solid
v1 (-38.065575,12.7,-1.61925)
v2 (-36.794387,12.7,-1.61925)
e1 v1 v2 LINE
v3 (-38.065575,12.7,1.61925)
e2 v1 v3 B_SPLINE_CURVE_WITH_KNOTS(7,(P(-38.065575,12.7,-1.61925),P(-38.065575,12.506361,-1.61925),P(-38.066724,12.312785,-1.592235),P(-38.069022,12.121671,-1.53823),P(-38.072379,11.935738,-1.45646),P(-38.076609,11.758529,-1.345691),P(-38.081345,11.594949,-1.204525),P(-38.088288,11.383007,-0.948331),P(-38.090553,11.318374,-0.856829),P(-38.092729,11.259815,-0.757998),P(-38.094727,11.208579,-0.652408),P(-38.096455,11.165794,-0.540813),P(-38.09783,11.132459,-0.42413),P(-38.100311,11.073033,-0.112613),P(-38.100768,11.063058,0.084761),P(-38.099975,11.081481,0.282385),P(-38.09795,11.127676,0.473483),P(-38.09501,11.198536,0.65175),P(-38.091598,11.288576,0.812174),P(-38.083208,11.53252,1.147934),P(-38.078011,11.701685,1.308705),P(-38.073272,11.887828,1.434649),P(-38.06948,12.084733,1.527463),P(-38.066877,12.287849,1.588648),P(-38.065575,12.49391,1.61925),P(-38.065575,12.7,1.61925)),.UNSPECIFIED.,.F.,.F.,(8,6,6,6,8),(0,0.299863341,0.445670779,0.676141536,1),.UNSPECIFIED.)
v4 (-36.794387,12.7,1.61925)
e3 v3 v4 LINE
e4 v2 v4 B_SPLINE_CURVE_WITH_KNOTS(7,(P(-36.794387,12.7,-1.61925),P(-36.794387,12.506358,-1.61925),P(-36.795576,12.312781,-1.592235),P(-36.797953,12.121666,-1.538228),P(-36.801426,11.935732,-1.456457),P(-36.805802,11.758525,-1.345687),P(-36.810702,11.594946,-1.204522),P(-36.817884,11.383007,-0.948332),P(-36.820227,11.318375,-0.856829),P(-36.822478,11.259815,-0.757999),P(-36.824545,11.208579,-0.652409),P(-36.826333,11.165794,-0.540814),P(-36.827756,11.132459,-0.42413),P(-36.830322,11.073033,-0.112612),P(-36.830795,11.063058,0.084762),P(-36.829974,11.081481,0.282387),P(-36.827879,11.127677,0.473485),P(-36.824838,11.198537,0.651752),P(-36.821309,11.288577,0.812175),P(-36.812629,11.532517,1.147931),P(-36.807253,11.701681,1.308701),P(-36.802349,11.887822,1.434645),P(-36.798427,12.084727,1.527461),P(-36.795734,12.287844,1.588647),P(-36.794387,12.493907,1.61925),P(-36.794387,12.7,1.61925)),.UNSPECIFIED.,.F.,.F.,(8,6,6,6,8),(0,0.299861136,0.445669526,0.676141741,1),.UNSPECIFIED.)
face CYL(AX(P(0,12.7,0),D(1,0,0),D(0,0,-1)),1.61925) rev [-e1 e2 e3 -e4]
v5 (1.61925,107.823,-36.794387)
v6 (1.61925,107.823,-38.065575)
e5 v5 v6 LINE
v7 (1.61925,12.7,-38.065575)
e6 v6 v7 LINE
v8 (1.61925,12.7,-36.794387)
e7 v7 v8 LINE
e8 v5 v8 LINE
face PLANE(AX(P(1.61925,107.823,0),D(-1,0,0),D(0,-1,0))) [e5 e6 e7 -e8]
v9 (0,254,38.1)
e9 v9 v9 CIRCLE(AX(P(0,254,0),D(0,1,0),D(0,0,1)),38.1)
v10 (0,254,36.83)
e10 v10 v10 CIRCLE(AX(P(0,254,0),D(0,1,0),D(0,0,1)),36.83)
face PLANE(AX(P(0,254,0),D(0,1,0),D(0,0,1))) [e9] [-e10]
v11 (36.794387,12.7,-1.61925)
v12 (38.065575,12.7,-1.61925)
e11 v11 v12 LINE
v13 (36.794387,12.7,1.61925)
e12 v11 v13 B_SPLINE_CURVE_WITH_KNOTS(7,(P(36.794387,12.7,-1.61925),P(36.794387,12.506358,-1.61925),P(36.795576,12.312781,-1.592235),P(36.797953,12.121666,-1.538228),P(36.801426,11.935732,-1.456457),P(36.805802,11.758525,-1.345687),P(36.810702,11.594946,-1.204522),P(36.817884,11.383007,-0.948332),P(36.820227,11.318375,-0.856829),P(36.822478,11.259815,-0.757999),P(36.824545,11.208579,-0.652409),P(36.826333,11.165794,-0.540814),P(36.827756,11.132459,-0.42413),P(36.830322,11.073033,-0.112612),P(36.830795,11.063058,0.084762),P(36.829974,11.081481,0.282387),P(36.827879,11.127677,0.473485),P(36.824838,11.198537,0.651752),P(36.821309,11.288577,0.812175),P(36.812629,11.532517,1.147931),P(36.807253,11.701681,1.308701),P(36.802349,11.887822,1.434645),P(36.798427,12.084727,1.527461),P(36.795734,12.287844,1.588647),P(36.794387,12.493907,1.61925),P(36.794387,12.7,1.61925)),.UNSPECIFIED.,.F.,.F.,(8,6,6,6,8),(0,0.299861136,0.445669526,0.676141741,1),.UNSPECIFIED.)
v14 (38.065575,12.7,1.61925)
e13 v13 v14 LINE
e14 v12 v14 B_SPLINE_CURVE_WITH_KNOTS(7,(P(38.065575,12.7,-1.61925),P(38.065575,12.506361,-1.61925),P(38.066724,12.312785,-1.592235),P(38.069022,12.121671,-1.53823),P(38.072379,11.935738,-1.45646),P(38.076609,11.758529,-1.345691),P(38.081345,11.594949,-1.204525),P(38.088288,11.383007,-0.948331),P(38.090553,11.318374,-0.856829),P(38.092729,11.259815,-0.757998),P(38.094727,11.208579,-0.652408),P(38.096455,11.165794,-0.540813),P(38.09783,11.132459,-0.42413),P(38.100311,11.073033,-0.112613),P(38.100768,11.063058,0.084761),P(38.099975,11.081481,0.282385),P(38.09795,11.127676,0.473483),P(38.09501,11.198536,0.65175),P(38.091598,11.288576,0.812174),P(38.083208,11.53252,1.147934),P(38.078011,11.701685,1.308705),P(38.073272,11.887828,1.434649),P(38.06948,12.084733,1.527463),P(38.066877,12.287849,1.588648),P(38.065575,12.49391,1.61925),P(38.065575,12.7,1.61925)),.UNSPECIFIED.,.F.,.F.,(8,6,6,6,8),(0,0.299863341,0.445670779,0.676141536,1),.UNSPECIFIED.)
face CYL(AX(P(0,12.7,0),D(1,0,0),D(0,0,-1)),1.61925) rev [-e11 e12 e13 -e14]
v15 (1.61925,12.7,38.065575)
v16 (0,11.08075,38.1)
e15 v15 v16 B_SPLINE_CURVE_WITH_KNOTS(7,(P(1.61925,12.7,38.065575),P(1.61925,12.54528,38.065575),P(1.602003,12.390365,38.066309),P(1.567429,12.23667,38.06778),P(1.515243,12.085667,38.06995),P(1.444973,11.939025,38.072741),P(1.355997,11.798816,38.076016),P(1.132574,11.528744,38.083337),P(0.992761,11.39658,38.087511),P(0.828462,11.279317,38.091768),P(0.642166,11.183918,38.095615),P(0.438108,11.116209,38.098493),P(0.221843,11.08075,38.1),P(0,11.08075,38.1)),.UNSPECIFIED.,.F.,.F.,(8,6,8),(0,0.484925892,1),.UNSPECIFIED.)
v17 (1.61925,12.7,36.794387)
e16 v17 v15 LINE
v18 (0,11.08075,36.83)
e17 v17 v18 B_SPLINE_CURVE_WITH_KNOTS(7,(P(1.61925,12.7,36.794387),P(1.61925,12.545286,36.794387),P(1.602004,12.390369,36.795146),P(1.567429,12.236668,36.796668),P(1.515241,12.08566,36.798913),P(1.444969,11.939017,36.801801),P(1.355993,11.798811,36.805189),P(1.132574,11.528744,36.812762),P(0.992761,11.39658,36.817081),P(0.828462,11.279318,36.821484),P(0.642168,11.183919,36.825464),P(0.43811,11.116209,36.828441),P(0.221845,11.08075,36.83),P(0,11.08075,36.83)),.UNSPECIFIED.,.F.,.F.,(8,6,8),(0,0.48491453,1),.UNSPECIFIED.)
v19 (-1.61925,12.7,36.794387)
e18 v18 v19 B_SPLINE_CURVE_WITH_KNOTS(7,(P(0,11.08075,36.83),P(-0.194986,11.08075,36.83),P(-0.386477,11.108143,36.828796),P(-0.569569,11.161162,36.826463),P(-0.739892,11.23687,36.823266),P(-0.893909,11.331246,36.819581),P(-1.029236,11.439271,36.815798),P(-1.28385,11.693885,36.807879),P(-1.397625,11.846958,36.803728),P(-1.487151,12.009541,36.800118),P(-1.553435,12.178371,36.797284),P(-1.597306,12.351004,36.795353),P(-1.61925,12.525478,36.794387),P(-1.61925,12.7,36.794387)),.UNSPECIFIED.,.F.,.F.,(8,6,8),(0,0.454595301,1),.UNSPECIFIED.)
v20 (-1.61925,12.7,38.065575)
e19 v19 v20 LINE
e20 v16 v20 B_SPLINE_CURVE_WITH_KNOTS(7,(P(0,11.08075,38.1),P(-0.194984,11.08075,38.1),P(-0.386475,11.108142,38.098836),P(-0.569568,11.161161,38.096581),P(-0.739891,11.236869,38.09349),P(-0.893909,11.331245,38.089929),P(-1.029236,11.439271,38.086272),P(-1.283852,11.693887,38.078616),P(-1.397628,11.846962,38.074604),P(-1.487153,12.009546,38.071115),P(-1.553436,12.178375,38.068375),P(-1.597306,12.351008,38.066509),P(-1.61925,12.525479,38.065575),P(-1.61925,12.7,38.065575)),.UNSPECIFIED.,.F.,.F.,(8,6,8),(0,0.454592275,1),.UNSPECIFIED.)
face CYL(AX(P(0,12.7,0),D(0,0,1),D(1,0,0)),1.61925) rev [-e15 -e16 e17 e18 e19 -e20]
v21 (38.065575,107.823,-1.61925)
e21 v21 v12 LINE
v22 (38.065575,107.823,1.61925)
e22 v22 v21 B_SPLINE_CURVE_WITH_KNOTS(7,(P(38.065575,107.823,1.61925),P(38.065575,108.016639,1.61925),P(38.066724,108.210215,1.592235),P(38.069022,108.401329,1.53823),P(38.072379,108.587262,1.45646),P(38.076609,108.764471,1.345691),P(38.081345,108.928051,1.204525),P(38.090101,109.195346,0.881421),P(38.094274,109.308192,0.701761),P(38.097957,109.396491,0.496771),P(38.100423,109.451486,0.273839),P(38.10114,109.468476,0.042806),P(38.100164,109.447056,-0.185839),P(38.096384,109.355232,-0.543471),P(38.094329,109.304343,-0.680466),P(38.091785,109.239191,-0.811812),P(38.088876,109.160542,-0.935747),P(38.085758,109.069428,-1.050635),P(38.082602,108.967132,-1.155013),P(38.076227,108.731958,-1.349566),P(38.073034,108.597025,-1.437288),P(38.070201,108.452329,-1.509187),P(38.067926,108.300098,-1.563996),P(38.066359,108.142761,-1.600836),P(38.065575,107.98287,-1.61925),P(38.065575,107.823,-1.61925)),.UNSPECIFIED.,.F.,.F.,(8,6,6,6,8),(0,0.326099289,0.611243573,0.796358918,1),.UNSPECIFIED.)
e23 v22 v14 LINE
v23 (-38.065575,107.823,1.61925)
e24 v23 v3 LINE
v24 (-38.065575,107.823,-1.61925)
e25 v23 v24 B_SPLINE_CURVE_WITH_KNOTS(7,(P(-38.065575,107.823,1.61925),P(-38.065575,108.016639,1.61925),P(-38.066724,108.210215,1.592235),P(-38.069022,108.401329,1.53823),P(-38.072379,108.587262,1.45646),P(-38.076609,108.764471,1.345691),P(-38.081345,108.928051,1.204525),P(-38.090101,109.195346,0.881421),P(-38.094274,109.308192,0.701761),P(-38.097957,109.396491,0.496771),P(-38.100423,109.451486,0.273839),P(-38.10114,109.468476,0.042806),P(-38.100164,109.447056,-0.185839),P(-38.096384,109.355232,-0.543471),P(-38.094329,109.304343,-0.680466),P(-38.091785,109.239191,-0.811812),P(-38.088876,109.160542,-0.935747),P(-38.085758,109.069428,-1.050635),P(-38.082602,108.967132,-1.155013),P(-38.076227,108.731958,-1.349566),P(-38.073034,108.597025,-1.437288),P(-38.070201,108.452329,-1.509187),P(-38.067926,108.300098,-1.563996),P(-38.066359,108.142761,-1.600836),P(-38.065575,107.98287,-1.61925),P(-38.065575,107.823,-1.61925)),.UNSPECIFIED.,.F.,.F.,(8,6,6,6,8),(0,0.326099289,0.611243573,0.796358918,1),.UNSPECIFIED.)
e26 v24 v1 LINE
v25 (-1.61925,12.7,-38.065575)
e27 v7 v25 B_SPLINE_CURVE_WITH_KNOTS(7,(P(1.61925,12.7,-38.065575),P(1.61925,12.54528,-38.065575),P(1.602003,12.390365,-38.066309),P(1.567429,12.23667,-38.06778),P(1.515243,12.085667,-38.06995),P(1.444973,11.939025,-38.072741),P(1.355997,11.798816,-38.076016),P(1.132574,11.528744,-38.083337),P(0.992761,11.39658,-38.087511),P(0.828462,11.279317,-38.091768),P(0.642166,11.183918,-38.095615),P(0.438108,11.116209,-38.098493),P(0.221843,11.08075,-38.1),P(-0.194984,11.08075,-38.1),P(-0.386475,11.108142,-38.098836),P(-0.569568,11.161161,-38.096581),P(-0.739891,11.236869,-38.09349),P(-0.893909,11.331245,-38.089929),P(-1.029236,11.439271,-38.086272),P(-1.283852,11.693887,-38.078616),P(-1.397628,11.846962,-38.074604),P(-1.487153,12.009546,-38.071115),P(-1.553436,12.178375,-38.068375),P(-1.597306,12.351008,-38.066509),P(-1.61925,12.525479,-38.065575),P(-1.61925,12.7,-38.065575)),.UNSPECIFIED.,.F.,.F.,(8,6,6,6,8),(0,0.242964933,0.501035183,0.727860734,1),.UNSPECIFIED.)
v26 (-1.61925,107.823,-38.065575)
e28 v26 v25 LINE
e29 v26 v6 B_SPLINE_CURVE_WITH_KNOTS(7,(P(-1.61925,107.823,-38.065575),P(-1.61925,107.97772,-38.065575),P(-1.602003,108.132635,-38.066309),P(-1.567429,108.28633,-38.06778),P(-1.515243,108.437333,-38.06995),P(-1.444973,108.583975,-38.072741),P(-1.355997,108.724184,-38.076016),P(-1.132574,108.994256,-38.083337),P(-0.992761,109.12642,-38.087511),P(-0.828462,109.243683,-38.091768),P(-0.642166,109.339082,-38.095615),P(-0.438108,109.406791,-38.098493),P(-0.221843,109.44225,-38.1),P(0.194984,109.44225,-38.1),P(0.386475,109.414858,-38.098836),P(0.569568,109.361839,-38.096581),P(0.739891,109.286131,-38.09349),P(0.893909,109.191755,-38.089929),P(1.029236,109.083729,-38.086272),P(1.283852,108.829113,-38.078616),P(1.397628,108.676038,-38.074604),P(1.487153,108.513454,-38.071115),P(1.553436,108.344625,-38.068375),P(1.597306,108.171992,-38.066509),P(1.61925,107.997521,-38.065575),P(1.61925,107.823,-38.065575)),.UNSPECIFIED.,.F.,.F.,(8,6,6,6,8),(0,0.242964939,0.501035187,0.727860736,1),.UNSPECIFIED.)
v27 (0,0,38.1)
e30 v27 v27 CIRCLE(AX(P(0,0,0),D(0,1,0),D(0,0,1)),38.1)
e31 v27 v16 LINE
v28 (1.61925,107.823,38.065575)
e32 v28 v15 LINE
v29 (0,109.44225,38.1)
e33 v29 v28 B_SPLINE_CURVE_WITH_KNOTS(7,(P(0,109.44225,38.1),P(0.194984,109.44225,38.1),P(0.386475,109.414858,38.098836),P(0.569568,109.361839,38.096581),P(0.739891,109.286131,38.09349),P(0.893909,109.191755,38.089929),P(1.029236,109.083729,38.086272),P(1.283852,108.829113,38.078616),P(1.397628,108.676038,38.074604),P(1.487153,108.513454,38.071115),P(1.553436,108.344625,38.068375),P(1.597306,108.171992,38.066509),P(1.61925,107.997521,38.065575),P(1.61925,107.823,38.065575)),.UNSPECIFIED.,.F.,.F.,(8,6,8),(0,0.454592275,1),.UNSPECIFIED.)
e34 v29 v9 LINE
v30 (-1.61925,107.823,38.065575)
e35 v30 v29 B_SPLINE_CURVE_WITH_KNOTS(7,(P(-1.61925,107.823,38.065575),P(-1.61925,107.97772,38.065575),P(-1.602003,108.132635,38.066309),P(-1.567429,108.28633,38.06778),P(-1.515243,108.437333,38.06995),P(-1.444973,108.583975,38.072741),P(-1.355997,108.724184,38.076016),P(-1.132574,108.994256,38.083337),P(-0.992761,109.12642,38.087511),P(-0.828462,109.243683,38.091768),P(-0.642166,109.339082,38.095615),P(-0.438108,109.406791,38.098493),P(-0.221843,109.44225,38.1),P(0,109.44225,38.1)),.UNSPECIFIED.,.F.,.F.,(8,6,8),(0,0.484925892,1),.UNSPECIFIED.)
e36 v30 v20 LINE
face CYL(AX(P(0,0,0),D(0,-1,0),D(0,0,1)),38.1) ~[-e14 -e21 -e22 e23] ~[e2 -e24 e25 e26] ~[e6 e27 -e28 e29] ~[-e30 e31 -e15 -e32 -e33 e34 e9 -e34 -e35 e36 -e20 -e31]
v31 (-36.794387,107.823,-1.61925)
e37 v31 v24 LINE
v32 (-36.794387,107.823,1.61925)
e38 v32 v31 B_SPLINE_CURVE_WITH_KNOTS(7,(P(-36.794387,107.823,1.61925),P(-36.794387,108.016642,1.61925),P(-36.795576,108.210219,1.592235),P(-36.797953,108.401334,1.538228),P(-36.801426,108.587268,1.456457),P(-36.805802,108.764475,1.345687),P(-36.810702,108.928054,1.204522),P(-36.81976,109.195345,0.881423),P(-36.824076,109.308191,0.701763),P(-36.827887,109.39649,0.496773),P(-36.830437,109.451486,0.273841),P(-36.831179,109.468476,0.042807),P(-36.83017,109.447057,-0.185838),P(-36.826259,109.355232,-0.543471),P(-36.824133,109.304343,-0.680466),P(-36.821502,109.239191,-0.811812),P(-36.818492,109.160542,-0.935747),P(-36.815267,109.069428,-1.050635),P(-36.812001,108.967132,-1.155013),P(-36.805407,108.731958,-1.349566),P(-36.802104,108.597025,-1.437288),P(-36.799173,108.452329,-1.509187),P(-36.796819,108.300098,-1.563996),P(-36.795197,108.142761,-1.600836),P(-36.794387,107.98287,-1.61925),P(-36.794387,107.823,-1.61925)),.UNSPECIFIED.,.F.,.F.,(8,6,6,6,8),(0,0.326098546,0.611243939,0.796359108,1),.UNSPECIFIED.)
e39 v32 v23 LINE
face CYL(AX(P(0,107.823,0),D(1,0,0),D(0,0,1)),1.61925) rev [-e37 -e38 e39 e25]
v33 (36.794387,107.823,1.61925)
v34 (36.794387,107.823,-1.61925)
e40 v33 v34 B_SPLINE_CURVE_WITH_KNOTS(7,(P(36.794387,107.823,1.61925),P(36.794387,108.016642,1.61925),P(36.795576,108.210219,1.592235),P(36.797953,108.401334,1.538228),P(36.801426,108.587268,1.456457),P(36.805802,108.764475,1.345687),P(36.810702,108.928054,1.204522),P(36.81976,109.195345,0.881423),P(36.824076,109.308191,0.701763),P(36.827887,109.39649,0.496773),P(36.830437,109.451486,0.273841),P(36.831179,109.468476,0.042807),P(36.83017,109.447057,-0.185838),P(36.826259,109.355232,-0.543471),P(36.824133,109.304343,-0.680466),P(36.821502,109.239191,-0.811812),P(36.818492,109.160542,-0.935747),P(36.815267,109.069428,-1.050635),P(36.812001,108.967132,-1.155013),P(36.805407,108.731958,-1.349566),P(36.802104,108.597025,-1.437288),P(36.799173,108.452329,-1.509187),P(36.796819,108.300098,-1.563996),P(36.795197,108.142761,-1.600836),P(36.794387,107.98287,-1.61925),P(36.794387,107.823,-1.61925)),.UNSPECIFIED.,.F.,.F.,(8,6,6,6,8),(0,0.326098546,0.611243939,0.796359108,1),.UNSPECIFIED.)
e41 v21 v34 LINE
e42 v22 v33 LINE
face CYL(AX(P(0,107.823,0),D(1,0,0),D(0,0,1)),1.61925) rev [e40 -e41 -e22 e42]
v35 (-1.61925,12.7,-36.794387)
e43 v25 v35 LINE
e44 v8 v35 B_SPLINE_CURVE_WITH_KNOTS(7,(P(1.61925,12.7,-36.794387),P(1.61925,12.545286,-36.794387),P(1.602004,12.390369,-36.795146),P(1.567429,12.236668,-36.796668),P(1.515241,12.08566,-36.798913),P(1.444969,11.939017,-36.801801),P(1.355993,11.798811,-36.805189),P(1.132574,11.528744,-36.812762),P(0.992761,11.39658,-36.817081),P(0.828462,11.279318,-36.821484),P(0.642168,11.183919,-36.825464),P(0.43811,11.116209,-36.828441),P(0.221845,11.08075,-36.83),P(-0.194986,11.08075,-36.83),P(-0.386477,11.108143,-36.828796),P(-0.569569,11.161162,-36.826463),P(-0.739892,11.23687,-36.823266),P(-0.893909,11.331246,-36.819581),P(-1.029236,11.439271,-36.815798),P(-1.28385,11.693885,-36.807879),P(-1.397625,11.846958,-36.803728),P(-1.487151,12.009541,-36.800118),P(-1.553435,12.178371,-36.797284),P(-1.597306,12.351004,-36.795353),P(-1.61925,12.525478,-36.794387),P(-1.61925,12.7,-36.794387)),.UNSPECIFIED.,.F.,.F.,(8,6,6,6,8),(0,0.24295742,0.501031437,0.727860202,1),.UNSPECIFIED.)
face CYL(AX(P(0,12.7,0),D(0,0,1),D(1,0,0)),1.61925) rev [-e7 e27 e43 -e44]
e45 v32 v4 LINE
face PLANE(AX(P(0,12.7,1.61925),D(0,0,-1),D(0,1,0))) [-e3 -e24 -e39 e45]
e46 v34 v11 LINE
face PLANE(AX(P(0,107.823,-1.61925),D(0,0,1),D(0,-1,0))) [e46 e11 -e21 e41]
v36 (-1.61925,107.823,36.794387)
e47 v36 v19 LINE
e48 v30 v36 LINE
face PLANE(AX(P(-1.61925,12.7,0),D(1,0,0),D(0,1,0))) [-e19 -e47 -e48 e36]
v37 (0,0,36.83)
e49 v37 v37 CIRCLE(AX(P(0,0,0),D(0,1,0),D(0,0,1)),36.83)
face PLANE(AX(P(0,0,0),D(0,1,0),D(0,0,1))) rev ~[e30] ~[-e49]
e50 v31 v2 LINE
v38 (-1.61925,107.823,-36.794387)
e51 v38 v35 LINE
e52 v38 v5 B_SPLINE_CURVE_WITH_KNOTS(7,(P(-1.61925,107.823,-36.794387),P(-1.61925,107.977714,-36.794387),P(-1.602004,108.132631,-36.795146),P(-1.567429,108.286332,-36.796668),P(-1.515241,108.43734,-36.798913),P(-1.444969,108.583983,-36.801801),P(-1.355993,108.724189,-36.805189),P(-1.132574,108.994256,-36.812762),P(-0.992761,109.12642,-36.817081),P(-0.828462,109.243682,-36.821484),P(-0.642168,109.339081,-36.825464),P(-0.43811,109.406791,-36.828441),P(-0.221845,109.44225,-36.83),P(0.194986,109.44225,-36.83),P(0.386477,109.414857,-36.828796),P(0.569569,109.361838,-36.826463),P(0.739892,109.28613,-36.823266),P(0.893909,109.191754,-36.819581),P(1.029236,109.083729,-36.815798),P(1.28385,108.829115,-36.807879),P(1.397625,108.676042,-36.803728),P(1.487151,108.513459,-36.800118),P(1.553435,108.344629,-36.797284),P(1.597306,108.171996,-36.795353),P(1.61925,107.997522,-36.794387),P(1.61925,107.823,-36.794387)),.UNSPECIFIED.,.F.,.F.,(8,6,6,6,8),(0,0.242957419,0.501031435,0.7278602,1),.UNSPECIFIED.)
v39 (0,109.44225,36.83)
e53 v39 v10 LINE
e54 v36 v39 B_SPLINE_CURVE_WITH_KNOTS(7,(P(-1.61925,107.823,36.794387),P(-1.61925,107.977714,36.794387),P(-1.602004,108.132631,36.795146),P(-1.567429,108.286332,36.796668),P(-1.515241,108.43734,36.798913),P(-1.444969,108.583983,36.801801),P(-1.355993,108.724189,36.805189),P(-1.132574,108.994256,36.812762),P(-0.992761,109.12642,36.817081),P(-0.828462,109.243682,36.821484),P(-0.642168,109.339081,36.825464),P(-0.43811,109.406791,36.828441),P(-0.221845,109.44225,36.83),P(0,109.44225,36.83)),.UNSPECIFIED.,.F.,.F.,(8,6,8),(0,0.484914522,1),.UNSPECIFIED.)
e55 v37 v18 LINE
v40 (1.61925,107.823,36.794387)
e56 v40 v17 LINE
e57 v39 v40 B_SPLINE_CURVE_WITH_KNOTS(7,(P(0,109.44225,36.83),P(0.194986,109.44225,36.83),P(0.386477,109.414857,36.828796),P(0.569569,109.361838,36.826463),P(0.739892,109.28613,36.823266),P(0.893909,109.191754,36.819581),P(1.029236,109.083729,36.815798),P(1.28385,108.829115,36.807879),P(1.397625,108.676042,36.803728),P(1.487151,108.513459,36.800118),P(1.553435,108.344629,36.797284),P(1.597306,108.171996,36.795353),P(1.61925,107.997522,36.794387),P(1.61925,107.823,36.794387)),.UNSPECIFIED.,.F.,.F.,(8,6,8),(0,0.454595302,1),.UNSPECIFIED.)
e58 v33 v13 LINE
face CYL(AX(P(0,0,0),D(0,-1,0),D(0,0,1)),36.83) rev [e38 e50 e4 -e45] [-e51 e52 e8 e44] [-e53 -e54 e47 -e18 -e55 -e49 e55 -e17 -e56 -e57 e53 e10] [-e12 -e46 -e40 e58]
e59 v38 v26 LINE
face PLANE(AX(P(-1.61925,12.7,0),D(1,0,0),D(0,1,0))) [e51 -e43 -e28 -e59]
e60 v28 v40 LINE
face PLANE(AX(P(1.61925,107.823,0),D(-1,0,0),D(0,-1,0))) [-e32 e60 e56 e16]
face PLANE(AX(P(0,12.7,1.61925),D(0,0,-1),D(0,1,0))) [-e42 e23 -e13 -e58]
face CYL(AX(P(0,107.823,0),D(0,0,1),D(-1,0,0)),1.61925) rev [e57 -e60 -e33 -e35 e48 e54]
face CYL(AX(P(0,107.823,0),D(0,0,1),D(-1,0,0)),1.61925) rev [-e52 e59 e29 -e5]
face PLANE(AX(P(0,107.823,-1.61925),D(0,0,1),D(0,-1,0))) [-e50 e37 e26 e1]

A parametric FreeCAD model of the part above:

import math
import FreeCAD as App
import Part
import Sketcher
from FreeCAD import Vector
Q = App.Units.Quantity

doc = App.newDocument("Part")
body = doc.addObject("PartDesign::Body", "Body")

# Sketch on XZ plane
sketch1 = doc.addObject("Sketcher::SketchObject", "Sketch")
body.addObject(sketch1)
sketch1.AttachmentSupport = (doc.XZ_Plane, [""])
sketch1.MapMode = "FlatFace"
sketch1.addGeometry(Part.Circle(Vector(0, 0, 0), Vector(0, 0, 1), 38.1), False)
sketch1.addGeometry(Part.Circle(Vector(0, 0, 0), Vector(0, 0, 1), 36.83), False)
sketch1.addConstraint(Sketcher.Constraint("Coincident", 0, 3, -1, 1))
sketch1.addConstraint(Sketcher.Constraint("Coincident", 1, 3, -1, 1))
sketch1.addConstraint(Sketcher.Constraint("Diameter", 0, Q("3 in")))
sketch1.addConstraint(Sketcher.Constraint("Diameter", 1, Q("2.9 in")))
pad1 = doc.addObject("PartDesign::Pad", "Pad")
body.addObject(pad1)
pad1.Profile = sketch1
pad1.Length = Q("10 in")
pad1.Reversed = True

# Sketch on XY plane
sketch2 = doc.addObject("Sketcher::SketchObject", "Sketch001")
body.addObject(sketch2)
sketch2.AttachmentSupport = (doc.XY_Plane, [""])
sketch2.MapMode = "FlatFace"
sketch2.addGeometry(Part.LineSegment(Vector(-1.61925, 107.823, 0), Vector(-1.61925, 12.7, 0)), False)
sketch2.addGeometry(Part.ArcOfCircle(Part.Circle(Vector(0, 12.7, 0), Vector(0, 0, 1), 1.61925), math.radians(180), math.radians(360)), False)
sketch2.addGeometry(Part.LineSegment(Vector(1.61925, 12.7, 0), Vector(1.61925, 107.823, 0)), False)
sketch2.addGeometry(Part.ArcOfCircle(Part.Circle(Vector(0, 107.823, 0), Vector(0, 0, 1), 1.61925), math.radians(0), math.radians(180)), False)
sketch2.addConstraint(Sketcher.Constraint("Tangent", 0, 2, 1, 1))
sketch2.addConstraint(Sketcher.Constraint("Tangent", 1, 2, 2, 1))
sketch2.addConstraint(Sketcher.Constraint("Tangent", 2, 2, 3, 1))
sketch2.addConstraint(Sketcher.Constraint("Tangent", 3, 2, 0, 1))
sketch2.addConstraint(Sketcher.Constraint("Vertical", 0))
sketch2.addConstraint(Sketcher.Constraint("Vertical", 2))
sketch2.addConstraint(Sketcher.Constraint("PointOnObject", 1, 3, -2))
sketch2.addConstraint(Sketcher.Constraint("DistanceY", -1, 1, 1, 3, Q("0.5 in")))
sketch2.addConstraint(Sketcher.Constraint("DistanceY", 0, 2, 0, 1, Q("3.745 in")))
sketch2.addConstraint(Sketcher.Constraint("Radius", 1, 1.61925))
pocket1 = doc.addObject("PartDesign::Pocket", "Pocket")
body.addObject(pocket1)
pocket1.Profile = sketch2
pocket1.Length = 521.304227
pocket1.Midplane = True
doc.recompute()

polarpattern = doc.addObject("PartDesign::PolarPattern", "PolarPattern")
body.addObject(polarpattern)
polarpattern.Originals = [pocket1]
polarpattern.Axis = (doc.Y_Axis, [""])
polarpattern.Angle = 90
polarpattern.Occurrences = 2
body.Tip = polarpattern

doc.recompute()
